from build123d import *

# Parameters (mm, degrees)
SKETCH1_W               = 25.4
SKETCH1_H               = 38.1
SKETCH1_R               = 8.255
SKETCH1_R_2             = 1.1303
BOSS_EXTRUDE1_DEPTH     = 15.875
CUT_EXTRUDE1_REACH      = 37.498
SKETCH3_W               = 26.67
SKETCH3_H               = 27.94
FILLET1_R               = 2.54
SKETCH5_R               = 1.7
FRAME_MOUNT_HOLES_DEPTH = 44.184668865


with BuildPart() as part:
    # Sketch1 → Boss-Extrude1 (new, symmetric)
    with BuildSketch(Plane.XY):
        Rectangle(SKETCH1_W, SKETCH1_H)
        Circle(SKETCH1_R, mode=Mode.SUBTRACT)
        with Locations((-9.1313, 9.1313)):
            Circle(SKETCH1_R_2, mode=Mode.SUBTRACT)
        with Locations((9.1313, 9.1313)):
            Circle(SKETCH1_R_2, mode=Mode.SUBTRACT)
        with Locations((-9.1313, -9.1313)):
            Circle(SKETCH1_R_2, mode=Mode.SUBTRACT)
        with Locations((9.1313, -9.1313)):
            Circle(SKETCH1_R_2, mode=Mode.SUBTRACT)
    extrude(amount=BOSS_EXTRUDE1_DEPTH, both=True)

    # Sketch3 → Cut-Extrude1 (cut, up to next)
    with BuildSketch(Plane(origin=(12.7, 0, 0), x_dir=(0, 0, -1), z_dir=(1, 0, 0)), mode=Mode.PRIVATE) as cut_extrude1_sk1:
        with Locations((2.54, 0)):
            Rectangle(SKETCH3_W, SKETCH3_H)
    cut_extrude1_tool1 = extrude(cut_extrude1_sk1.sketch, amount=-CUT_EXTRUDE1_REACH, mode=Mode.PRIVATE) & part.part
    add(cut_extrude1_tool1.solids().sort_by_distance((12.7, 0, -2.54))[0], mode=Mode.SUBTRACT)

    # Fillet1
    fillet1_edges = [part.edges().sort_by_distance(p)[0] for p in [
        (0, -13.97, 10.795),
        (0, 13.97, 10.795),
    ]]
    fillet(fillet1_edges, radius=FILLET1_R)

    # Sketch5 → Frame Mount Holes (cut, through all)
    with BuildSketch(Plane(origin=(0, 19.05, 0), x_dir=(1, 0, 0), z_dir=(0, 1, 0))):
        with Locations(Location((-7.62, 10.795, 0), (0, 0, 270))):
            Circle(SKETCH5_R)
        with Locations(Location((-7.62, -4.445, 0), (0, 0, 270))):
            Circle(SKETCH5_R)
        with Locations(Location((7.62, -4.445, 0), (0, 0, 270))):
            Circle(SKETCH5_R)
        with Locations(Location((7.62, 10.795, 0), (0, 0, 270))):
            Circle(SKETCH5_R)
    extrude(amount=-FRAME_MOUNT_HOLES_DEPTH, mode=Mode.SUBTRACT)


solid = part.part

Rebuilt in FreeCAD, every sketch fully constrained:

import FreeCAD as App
import Part
import Sketcher

V = App.Vector
Q = App.Units.Quantity


def edges_at(feature, points):
    """Names of the edges that pass closest to the given points."""
    edges = feature.Shape.Edges
    near = lambda p: min(range(len(edges)), key=lambda i: edges[i].distToShape(Part.Vertex(*p))[0])
    return sorted({f"Edge{near(p) + 1}" for p in points})


def add_polygon(sketch, points):
    """Adds a closed chain of lines whose ends are joined by coincident constraints."""
    first, n = sketch.GeometryCount, len(points)
    for a, b in zip(points, points[1:] + points[:1]):
        sketch.addGeometry(Part.LineSegment(App.Vector(*a, 0), App.Vector(*b, 0)), False)
    for i in range(n):
        sketch.addConstraint(Sketcher.Constraint("Coincident", first + i, 2, first + (i + 1) % n, 1))

doc = App.newDocument("Part")
body = doc.addObject("PartDesign::Body", "Body")

sketch1 = body.newObject("Sketcher::SketchObject", "Sketch")
sketch1.AttachmentSupport = (doc.getObject("XY_Plane"), [""])
sketch1.MapMode = "FlatFace"
add_polygon(sketch1, [(-12.7, 19.05), (-12.7, -19.05), (12.7, -19.05), (12.7, 19.05)])
sketch1.addGeometry(Part.Circle(V(-9.1313, -9.1313, 0), V(0, 0, 1), 1.1303), False)
sketch1.addGeometry(Part.Circle(V(0, 0, 0), V(0, 0, 1), 8.255), False)
sketch1.addGeometry(Part.Circle(V(9.1313, -9.1313, 0), V(0, 0, 1), 1.1303), False)
sketch1.addGeometry(Part.Circle(V(-9.1313, 9.1313, 0), V(0, 0, 1), 1.1303), False)
sketch1.addGeometry(Part.Circle(V(9.1313, 9.1313, 0), V(0, 0, 1), 1.1303), False)
sketch1.addConstraint([
    Sketcher.Constraint("Vertical", 0),
    Sketcher.Constraint("Horizontal", 1),
    Sketcher.Constraint("Vertical", 2),
    Sketcher.Constraint("Horizontal", 3),
    Sketcher.Constraint("Coincident", 5, 3, -1, 1),
    Sketcher.Constraint("Equal", 4, 6),
    Sketcher.Constraint("Equal", 6, 7),
    Sketcher.Constraint("Equal", 7, 8),
    Sketcher.Constraint("Symmetric", 6, 3, 7, 3, -1, 1),
    Sketcher.Constraint("Symmetric", 4, 3, 8, 3, -1, 1),
    Sketcher.Constraint("Symmetric", 0, 2, 2, 2, -1, 1),
    Sketcher.Constraint("Symmetric", 4, 3, 6, 3, -2),
    Sketcher.Constraint("Diameter", 5, Q("0.65 in")),
    Sketcher.Constraint("DistanceX", 1, 1, 1, 2, Q("1 in")),
    Sketcher.Constraint("Diameter", 4, Q("0.089 in")),
    Sketcher.Constraint("DistanceY", 0, 2, 0, 1, Q("1.5 in")),
    Sketcher.Constraint("DistanceX", 4, 3, 6, 3, Q("0.719 in")),
    Sketcher.Constraint("DistanceY", 4, 3, 7, 3, Q("0.719 in")),
])
pad1 = body.newObject("PartDesign::Pad", "Pad")
pad1.Profile = sketch1
pad1.Length = Q("1.25 in")
pad1.Midplane = True

sketch2 = body.newObject("Sketcher::SketchObject", "Sketch001")
sketch2.AttachmentSupport = (doc.getObject("YZ_Plane"), [""])
sketch2.MapMode = "FlatFace"
sketch2.AttachmentOffset = App.Placement(V(0, 0, 0.5 * 25.4), App.Rotation())
add_polygon(sketch2, [(13.97, 10.795), (-13.97, 10.795), (-13.97, -15.875), (13.97, -15.875)])
sketch2.addConstraint([
    Sketcher.Constraint("Horizontal", 0),
    Sketcher.Constraint("Vertical", 1),
    Sketcher.Constraint("Horizontal", 2),
    Sketcher.Constraint("Vertical", 3),
    Sketcher.Constraint("DistanceX", 0, 2, 0, 1, Q("1.1 in")),
    Sketcher.Constraint("DistanceY", 1, 2, 1, 1, Q("1.05 in")),
    Sketcher.Constraint("DistanceX", 0, 2, -1, 1, Q("0.55 in")),
    Sketcher.Constraint("DistanceY", -1, 1, 0, 2, Q("0.425 in")),
])
pocket1 = body.newObject("PartDesign::Pocket", "Pocket")
pocket1.Profile = sketch2
pocket1.Length = Q("1 in")
doc.recompute()

fillet = body.newObject("PartDesign::Fillet", "Fillet")
fillet.Base = (pocket1, edges_at(pocket1, [(0, -13.97, 10.795), (0, 13.97, 10.795)]))
fillet.Radius = Q("0.1 in")

sketch3 = body.newObject("Sketcher::SketchObject", "Sketch002")
sketch3.AttachmentSupport = (doc.getObject("XZ_Plane"), [""])
sketch3.MapMode = "FlatFace"
sketch3.AttachmentOffset = App.Placement(V(0, 0, -0.75 * 25.4), App.Rotation())
sketch3.addGeometry([
    Part.Circle(V(-7.62, -10.795, 0), V(0, 0, 1), 1.7),
    Part.Circle(V(-7.62, 4.445, 0), V(0, 0, 1), 1.7),
    Part.Circle(V(7.62, 4.445, 0), V(0, 0, 1), 1.7),
    Part.Circle(V(7.62, -10.795, 0), V(0, 0, 1), 1.7),
], False)
sketch3.addConstraint([
    Sketcher.Constraint("Equal", 0, 1),
    Sketcher.Constraint("Equal", 1, 2),
    Sketcher.Constraint("Equal", 2, 3),
    Sketcher.Constraint("Symmetric", 1, 3, 2, 3, -2),
    Sketcher.Constraint("Symmetric", 0, 3, 3, 3, -2),
    Sketcher.Constraint("Vertical", 0, 3, 1, 3),
    Sketcher.Constraint("DistanceX", 0, 3, -1, 1, Q("0.3 in")),
    Sketcher.Constraint("DistanceY", 0, 3, 1, 3, Q("0.6 in")),
    Sketcher.Constraint("Diameter", 0, 3.4),
    Sketcher.Constraint("DistanceY", 0, 3, -1, 1, Q("0.425 in")),
])
pocket2 = body.newObject("PartDesign::Pocket", "Pocket001")
pocket2.Profile = sketch3
pocket2.Type = "ThroughAll"
pocket2.Reversed = True

doc.recompute()
